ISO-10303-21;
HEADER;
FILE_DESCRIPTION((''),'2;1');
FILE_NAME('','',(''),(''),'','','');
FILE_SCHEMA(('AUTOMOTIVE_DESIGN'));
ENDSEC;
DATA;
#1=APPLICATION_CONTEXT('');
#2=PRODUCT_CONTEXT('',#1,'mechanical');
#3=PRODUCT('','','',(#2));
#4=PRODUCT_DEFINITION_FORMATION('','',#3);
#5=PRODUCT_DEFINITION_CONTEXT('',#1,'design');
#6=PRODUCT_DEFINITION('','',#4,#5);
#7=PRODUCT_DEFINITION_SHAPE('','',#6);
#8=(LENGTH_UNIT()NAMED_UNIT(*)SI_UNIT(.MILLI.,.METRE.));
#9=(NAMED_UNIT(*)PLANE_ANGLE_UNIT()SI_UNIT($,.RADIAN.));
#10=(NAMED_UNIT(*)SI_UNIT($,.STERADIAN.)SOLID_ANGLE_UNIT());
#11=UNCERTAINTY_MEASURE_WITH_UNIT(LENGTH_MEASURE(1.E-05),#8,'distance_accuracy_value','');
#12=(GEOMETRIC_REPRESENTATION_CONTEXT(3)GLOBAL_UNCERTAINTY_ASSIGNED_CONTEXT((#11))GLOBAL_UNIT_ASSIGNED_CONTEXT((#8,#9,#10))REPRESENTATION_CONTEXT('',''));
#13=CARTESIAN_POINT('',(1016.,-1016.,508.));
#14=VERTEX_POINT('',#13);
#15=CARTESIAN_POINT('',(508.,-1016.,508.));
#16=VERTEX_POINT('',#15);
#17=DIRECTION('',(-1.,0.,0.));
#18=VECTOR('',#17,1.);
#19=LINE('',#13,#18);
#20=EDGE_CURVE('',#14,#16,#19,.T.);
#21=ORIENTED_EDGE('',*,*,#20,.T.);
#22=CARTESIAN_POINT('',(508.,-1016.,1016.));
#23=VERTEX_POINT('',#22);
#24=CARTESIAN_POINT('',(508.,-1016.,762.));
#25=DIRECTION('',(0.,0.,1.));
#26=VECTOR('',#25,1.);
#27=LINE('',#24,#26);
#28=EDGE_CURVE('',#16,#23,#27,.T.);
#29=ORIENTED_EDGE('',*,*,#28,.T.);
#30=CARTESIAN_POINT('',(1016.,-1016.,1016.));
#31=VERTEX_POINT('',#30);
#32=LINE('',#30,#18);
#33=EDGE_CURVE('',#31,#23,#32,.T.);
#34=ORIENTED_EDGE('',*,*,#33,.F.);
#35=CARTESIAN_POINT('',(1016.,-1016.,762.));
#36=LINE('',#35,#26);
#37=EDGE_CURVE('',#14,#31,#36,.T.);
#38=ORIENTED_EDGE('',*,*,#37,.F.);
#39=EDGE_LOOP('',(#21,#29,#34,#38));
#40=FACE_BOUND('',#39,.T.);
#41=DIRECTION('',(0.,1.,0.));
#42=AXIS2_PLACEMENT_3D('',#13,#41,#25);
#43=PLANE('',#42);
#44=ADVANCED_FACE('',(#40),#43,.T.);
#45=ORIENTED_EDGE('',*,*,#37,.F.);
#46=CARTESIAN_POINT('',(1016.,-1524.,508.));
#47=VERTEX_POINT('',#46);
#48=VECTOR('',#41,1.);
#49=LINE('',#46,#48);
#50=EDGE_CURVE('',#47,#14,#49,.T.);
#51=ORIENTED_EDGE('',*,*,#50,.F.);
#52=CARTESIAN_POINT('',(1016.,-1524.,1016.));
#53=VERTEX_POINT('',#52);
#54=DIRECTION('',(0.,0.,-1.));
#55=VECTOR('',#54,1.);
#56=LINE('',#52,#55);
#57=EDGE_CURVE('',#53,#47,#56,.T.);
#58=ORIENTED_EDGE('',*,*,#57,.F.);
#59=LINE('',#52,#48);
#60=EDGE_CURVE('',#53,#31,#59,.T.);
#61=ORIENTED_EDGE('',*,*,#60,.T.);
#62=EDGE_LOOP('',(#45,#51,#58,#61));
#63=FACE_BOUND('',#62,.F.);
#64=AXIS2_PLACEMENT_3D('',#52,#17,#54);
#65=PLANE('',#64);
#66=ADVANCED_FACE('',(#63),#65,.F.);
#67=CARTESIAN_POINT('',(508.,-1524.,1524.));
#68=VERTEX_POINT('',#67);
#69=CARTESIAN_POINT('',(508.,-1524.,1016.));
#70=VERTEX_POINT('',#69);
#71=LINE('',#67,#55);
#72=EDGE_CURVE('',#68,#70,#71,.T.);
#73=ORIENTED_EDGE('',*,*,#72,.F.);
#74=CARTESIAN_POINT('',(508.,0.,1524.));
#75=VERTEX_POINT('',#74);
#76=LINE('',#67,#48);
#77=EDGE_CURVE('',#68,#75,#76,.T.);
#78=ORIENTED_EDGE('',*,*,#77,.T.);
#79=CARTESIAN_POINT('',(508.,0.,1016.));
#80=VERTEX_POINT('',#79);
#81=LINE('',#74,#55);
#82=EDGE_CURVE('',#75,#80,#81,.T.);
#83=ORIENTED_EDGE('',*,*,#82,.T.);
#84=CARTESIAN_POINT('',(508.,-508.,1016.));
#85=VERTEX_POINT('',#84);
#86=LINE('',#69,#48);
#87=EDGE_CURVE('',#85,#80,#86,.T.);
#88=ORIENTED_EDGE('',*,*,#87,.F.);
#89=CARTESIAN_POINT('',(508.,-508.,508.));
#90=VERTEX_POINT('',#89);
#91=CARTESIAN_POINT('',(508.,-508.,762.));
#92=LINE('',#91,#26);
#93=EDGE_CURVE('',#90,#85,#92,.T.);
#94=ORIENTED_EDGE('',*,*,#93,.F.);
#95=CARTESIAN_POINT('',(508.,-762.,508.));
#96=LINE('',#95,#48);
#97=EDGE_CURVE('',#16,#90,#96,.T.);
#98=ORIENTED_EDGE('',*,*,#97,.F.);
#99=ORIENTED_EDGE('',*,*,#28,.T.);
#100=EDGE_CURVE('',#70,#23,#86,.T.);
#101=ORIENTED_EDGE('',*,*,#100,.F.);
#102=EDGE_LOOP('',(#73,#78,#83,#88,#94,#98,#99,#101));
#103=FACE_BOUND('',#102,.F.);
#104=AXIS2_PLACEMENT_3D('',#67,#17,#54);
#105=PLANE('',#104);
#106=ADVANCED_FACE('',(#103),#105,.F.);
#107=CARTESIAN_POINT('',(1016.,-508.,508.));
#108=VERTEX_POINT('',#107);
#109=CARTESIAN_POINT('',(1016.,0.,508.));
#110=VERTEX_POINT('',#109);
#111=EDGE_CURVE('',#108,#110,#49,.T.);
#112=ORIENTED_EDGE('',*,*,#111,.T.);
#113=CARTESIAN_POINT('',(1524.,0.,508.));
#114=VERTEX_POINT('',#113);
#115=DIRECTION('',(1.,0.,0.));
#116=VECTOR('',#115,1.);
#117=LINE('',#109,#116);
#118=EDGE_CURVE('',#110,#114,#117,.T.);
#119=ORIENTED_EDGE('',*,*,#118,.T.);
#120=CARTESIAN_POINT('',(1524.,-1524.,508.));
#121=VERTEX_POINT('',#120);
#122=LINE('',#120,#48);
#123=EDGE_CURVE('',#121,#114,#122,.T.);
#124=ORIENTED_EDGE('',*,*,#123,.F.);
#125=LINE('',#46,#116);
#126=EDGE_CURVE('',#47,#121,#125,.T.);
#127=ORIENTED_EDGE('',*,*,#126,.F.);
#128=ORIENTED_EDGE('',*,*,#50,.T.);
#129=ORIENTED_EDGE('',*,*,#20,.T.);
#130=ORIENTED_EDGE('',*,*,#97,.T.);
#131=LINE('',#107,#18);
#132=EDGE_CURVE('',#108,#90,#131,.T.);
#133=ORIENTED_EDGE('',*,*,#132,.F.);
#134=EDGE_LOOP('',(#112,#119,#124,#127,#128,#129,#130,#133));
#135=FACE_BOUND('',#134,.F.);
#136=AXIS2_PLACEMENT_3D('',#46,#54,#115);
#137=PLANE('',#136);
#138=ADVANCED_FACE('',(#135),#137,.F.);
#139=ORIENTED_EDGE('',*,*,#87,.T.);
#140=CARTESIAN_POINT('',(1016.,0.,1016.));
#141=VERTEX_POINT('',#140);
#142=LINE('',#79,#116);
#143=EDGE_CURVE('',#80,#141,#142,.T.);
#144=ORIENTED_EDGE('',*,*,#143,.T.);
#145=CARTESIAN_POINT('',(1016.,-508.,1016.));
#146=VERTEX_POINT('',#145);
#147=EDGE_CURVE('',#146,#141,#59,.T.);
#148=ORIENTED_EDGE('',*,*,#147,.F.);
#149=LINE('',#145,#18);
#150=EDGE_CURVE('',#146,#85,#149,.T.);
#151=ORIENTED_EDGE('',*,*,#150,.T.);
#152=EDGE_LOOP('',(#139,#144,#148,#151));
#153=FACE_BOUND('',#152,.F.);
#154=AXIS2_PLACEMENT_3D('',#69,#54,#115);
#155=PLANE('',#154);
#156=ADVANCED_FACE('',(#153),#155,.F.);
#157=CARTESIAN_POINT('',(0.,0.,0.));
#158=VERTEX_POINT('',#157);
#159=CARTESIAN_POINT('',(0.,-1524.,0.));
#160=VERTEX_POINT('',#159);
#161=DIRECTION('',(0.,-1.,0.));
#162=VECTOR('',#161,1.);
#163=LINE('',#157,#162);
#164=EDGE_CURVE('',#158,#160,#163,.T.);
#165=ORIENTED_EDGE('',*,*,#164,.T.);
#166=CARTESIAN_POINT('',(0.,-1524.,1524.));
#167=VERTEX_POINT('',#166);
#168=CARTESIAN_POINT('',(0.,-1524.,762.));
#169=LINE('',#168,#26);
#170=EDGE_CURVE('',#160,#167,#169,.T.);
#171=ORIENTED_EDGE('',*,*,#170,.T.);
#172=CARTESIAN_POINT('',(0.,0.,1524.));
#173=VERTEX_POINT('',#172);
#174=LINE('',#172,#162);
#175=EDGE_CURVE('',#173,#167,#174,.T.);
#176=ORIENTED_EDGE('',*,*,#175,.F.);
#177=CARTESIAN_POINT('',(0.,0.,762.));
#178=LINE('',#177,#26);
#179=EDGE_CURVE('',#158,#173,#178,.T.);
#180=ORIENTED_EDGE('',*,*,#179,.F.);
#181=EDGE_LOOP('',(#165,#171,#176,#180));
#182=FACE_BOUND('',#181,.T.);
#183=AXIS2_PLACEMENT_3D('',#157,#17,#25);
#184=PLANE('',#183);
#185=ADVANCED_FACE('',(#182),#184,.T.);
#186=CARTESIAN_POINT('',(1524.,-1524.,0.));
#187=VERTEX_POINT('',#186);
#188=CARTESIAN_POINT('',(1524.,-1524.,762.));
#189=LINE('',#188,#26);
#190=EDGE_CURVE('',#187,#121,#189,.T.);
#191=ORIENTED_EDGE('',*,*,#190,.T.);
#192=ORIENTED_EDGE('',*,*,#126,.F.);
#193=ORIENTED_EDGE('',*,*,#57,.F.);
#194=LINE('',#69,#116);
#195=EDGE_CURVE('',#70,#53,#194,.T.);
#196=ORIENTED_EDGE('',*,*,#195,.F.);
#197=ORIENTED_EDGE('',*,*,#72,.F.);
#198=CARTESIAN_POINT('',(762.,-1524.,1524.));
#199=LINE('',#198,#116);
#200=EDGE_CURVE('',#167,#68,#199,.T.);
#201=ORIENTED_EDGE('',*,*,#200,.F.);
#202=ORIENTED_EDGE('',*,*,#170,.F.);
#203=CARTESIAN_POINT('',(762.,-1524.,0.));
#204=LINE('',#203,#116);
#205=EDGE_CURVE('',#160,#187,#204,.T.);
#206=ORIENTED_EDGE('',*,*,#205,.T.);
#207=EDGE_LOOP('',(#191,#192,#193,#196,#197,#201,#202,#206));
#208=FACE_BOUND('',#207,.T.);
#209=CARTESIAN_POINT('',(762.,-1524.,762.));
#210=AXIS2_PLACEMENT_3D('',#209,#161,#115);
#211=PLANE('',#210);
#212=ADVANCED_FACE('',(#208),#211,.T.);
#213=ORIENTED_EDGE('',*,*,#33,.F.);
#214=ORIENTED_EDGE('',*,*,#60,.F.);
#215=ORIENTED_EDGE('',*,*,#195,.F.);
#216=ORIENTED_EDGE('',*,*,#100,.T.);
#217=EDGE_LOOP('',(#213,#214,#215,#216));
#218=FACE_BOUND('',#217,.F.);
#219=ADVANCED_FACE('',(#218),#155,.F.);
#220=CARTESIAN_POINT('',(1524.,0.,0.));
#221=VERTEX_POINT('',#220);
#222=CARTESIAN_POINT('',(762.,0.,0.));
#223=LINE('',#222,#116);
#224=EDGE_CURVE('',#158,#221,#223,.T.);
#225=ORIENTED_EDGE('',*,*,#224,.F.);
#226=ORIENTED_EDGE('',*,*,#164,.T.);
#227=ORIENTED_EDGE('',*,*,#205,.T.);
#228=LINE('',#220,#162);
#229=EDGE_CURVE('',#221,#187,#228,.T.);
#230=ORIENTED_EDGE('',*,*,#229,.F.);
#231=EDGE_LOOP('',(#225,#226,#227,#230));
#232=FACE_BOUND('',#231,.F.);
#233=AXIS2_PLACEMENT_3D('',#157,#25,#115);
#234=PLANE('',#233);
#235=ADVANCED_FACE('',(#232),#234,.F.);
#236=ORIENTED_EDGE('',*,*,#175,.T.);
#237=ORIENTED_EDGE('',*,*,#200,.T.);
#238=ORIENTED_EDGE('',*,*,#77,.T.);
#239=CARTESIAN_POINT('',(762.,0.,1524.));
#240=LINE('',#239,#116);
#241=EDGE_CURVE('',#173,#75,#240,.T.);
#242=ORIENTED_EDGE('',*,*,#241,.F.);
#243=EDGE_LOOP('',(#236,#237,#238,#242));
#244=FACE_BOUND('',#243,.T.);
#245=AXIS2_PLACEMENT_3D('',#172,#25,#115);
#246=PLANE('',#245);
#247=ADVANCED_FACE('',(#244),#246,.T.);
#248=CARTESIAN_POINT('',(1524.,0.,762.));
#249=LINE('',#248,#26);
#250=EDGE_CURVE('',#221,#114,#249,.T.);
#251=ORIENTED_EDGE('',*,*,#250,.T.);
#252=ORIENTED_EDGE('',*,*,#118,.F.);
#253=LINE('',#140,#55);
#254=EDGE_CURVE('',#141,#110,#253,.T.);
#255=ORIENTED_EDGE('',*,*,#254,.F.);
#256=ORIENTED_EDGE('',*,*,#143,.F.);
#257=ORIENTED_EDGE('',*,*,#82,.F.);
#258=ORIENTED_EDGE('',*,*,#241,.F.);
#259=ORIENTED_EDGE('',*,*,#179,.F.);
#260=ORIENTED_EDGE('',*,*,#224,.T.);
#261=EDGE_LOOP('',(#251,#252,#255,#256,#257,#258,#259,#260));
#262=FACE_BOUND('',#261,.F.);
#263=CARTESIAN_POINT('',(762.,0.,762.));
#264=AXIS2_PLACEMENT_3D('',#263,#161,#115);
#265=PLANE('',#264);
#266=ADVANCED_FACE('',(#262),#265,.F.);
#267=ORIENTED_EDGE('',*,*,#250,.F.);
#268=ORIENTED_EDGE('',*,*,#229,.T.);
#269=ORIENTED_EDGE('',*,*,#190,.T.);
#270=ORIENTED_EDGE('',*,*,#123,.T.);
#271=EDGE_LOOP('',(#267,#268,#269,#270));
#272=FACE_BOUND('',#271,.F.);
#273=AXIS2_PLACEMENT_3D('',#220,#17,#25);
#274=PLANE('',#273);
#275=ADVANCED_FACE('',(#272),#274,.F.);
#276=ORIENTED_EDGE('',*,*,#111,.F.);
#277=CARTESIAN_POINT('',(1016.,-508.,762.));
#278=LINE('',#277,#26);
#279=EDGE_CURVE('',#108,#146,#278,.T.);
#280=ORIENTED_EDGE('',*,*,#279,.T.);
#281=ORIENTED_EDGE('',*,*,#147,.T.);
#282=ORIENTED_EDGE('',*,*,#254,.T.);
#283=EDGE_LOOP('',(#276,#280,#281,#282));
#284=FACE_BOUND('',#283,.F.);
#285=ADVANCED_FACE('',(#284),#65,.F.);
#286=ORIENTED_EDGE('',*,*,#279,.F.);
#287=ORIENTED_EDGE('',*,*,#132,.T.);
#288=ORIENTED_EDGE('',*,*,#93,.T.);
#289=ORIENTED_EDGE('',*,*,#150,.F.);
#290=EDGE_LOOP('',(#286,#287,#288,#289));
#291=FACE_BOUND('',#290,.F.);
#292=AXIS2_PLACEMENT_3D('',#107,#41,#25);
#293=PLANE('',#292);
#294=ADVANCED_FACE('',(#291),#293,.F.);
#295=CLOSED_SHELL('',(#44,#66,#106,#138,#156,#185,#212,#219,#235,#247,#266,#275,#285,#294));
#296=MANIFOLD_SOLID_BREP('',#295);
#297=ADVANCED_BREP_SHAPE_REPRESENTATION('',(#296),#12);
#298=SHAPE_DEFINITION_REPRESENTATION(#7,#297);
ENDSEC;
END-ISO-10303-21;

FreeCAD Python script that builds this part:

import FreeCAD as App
import Part
import Sketcher

V = App.Vector
Q = App.Units.Quantity

doc = App.newDocument("Part")
body = doc.addObject("PartDesign::Body", "Body")

# Sketch on XZ plane
sketch1 = doc.addObject("Sketcher::SketchObject", "Sketch")
body.addObject(sketch1)
sketch1.AttachmentSupport = (doc.XZ_Plane, [""])
sketch1.MapMode = "FlatFace"
sketch1.addGeometry([
    Part.LineSegment(V(0, 1524, 0), V(0, 0, 0)),
    Part.LineSegment(V(0, 0, 0), V(1524, 0, 0)),
    Part.LineSegment(V(1524, 0, 0), V(1524, 1524, 0)),
    Part.LineSegment(V(1524, 1524, 0), V(0, 1524, 0)),
], False)
sketch1.addConstraint([
    Sketcher.Constraint("Coincident", 0, 2, 1, 1),
    Sketcher.Constraint("Coincident", 1, 2, 2, 1),
    Sketcher.Constraint("Coincident", 2, 2, 3, 1),
    Sketcher.Constraint("Coincident", 3, 2, 0, 1),
    Sketcher.Constraint("Vertical", 0),
    Sketcher.Constraint("Horizontal", 1),
    Sketcher.Constraint("Vertical", 2),
    Sketcher.Constraint("Horizontal", 3),
    Sketcher.Constraint("Coincident", 0, 2, -1, 1),
    Sketcher.Constraint("Equal", 3, 0),
    Sketcher.Constraint("DistanceX", 1, 1, 1, 2, Q("60 in")),
])
pad1 = doc.addObject("PartDesign::Pad", "Pad")
body.addObject(pad1)
pad1.Profile = sketch1
pad1.Length = Q("60 in")

# Sketch on XZ plane
sketch2 = doc.addObject("Sketcher::SketchObject", "Sketch001")
body.addObject(sketch2)
sketch2.AttachmentSupport = (doc.XZ_Plane, [""])
sketch2.MapMode = "FlatFace"
sketch2.AttachmentOffset = App.Placement(V(0, 0, 60 * 25.4), App.Rotation())
sketch2.addGeometry([
    Part.LineSegment(V(1524, 1524, 0), V(508, 1524, 0)),  # 0
    Part.LineSegment(V(508, 1524, 0), V(508, 1016, 0)),  # 1
    Part.LineSegment(V(508, 1016, 0), V(1016, 1016, 0)),  # 2
    Part.LineSegment(V(1016, 1016, 0), V(1016, 508, 0)),  # 3
    Part.LineSegment(V(1016, 508, 0), V(1524, 508, 0)),  # 4
    Part.LineSegment(V(1524, 508, 0), V(1524, 1524, 0)),  # 5
], False)
sketch2.addConstraint([
    Sketcher.Constraint("Coincident", 0, 2, 1, 1),
    Sketcher.Constraint("Coincident", 1, 2, 2, 1),
    Sketcher.Constraint("Coincident", 2, 2, 3, 1),
    Sketcher.Constraint("Coincident", 3, 2, 4, 1),
    Sketcher.Constraint("Coincident", 4, 2, 5, 1),
    Sketcher.Constraint("Coincident", 5, 2, 0, 1),
    Sketcher.Constraint("Horizontal", 0),
    Sketcher.Constraint("Vertical", 1),
    Sketcher.Constraint("Horizontal", 2),
    Sketcher.Constraint("Vertical", 3),
    Sketcher.Constraint("Horizontal", 4),
    Sketcher.Constraint("Vertical", 5),
    Sketcher.Constraint("Equal", 2, 4),
    Sketcher.Constraint("Equal", 4, 1),
    Sketcher.Constraint("Equal", 1, 3),
    Sketcher.Constraint("DistanceX", 0, 2, 0, 1, Q("40 in")),
    Sketcher.Constraint("DistanceX", -1, 1, 0, 2, Q("20 in")),
    Sketcher.Constraint("DistanceY", -1, 1, 0, 2, Q("60 in")),
])
pocket1 = doc.addObject("PartDesign::Pocket", "Pocket")
body.addObject(pocket1)
pocket1.Profile = sketch2
pocket1.Length = Q("60 in")

# Sketch on YZ plane
sketch3 = doc.addObject("Sketcher::SketchObject", "Sketch002")
body.addObject(sketch3)
sketch3.AttachmentSupport = (doc.YZ_Plane, [""])
sketch3.MapMode = "FlatFace"
sketch3.AttachmentOffset = App.Placement(V(0, 0, 40 * 25.4), App.Rotation())
sketch3.addGeometry([
    Part.LineSegment(V(-1016, 1016, 0), V(-1016, 508, 0)),
    Part.LineSegment(V(-1016, 508, 0), V(-508, 508, 0)),
    Part.LineSegment(V(-508, 508, 0), V(-508, 1016, 0)),
    Part.LineSegment(V(-508, 1016, 0), V(-1016, 1016, 0)),
], False)
sketch3.addConstraint([
    Sketcher.Constraint("Coincident", 0, 2, 1, 1),
    Sketcher.Constraint("Coincident", 1, 2, 2, 1),
    Sketcher.Constraint("Coincident", 2, 2, 3, 1),
    Sketcher.Constraint("Coincident", 3, 2, 0, 1),
    Sketcher.Constraint("Vertical", 0),
    Sketcher.Constraint("Horizontal", 1),
    Sketcher.Constraint("Vertical", 2),
    Sketcher.Constraint("Horizontal", 3),
    Sketcher.Constraint("Equal", 3, 0),
    Sketcher.Constraint("DistanceX", 1, 1, 1, 2, Q("20 in")),
    Sketcher.Constraint("DistanceX", 0, 2, -1, 1, Q("40 in")),
    Sketcher.Constraint("DistanceY", -1, 1, 0, 2, Q("20 in")),
])
pocket2 = doc.addObject("PartDesign::Pocket", "Pocket001")
body.addObject(pocket2)
pocket2.Profile = sketch3
pocket2.Length = Q("20 in")

doc.recompute()
